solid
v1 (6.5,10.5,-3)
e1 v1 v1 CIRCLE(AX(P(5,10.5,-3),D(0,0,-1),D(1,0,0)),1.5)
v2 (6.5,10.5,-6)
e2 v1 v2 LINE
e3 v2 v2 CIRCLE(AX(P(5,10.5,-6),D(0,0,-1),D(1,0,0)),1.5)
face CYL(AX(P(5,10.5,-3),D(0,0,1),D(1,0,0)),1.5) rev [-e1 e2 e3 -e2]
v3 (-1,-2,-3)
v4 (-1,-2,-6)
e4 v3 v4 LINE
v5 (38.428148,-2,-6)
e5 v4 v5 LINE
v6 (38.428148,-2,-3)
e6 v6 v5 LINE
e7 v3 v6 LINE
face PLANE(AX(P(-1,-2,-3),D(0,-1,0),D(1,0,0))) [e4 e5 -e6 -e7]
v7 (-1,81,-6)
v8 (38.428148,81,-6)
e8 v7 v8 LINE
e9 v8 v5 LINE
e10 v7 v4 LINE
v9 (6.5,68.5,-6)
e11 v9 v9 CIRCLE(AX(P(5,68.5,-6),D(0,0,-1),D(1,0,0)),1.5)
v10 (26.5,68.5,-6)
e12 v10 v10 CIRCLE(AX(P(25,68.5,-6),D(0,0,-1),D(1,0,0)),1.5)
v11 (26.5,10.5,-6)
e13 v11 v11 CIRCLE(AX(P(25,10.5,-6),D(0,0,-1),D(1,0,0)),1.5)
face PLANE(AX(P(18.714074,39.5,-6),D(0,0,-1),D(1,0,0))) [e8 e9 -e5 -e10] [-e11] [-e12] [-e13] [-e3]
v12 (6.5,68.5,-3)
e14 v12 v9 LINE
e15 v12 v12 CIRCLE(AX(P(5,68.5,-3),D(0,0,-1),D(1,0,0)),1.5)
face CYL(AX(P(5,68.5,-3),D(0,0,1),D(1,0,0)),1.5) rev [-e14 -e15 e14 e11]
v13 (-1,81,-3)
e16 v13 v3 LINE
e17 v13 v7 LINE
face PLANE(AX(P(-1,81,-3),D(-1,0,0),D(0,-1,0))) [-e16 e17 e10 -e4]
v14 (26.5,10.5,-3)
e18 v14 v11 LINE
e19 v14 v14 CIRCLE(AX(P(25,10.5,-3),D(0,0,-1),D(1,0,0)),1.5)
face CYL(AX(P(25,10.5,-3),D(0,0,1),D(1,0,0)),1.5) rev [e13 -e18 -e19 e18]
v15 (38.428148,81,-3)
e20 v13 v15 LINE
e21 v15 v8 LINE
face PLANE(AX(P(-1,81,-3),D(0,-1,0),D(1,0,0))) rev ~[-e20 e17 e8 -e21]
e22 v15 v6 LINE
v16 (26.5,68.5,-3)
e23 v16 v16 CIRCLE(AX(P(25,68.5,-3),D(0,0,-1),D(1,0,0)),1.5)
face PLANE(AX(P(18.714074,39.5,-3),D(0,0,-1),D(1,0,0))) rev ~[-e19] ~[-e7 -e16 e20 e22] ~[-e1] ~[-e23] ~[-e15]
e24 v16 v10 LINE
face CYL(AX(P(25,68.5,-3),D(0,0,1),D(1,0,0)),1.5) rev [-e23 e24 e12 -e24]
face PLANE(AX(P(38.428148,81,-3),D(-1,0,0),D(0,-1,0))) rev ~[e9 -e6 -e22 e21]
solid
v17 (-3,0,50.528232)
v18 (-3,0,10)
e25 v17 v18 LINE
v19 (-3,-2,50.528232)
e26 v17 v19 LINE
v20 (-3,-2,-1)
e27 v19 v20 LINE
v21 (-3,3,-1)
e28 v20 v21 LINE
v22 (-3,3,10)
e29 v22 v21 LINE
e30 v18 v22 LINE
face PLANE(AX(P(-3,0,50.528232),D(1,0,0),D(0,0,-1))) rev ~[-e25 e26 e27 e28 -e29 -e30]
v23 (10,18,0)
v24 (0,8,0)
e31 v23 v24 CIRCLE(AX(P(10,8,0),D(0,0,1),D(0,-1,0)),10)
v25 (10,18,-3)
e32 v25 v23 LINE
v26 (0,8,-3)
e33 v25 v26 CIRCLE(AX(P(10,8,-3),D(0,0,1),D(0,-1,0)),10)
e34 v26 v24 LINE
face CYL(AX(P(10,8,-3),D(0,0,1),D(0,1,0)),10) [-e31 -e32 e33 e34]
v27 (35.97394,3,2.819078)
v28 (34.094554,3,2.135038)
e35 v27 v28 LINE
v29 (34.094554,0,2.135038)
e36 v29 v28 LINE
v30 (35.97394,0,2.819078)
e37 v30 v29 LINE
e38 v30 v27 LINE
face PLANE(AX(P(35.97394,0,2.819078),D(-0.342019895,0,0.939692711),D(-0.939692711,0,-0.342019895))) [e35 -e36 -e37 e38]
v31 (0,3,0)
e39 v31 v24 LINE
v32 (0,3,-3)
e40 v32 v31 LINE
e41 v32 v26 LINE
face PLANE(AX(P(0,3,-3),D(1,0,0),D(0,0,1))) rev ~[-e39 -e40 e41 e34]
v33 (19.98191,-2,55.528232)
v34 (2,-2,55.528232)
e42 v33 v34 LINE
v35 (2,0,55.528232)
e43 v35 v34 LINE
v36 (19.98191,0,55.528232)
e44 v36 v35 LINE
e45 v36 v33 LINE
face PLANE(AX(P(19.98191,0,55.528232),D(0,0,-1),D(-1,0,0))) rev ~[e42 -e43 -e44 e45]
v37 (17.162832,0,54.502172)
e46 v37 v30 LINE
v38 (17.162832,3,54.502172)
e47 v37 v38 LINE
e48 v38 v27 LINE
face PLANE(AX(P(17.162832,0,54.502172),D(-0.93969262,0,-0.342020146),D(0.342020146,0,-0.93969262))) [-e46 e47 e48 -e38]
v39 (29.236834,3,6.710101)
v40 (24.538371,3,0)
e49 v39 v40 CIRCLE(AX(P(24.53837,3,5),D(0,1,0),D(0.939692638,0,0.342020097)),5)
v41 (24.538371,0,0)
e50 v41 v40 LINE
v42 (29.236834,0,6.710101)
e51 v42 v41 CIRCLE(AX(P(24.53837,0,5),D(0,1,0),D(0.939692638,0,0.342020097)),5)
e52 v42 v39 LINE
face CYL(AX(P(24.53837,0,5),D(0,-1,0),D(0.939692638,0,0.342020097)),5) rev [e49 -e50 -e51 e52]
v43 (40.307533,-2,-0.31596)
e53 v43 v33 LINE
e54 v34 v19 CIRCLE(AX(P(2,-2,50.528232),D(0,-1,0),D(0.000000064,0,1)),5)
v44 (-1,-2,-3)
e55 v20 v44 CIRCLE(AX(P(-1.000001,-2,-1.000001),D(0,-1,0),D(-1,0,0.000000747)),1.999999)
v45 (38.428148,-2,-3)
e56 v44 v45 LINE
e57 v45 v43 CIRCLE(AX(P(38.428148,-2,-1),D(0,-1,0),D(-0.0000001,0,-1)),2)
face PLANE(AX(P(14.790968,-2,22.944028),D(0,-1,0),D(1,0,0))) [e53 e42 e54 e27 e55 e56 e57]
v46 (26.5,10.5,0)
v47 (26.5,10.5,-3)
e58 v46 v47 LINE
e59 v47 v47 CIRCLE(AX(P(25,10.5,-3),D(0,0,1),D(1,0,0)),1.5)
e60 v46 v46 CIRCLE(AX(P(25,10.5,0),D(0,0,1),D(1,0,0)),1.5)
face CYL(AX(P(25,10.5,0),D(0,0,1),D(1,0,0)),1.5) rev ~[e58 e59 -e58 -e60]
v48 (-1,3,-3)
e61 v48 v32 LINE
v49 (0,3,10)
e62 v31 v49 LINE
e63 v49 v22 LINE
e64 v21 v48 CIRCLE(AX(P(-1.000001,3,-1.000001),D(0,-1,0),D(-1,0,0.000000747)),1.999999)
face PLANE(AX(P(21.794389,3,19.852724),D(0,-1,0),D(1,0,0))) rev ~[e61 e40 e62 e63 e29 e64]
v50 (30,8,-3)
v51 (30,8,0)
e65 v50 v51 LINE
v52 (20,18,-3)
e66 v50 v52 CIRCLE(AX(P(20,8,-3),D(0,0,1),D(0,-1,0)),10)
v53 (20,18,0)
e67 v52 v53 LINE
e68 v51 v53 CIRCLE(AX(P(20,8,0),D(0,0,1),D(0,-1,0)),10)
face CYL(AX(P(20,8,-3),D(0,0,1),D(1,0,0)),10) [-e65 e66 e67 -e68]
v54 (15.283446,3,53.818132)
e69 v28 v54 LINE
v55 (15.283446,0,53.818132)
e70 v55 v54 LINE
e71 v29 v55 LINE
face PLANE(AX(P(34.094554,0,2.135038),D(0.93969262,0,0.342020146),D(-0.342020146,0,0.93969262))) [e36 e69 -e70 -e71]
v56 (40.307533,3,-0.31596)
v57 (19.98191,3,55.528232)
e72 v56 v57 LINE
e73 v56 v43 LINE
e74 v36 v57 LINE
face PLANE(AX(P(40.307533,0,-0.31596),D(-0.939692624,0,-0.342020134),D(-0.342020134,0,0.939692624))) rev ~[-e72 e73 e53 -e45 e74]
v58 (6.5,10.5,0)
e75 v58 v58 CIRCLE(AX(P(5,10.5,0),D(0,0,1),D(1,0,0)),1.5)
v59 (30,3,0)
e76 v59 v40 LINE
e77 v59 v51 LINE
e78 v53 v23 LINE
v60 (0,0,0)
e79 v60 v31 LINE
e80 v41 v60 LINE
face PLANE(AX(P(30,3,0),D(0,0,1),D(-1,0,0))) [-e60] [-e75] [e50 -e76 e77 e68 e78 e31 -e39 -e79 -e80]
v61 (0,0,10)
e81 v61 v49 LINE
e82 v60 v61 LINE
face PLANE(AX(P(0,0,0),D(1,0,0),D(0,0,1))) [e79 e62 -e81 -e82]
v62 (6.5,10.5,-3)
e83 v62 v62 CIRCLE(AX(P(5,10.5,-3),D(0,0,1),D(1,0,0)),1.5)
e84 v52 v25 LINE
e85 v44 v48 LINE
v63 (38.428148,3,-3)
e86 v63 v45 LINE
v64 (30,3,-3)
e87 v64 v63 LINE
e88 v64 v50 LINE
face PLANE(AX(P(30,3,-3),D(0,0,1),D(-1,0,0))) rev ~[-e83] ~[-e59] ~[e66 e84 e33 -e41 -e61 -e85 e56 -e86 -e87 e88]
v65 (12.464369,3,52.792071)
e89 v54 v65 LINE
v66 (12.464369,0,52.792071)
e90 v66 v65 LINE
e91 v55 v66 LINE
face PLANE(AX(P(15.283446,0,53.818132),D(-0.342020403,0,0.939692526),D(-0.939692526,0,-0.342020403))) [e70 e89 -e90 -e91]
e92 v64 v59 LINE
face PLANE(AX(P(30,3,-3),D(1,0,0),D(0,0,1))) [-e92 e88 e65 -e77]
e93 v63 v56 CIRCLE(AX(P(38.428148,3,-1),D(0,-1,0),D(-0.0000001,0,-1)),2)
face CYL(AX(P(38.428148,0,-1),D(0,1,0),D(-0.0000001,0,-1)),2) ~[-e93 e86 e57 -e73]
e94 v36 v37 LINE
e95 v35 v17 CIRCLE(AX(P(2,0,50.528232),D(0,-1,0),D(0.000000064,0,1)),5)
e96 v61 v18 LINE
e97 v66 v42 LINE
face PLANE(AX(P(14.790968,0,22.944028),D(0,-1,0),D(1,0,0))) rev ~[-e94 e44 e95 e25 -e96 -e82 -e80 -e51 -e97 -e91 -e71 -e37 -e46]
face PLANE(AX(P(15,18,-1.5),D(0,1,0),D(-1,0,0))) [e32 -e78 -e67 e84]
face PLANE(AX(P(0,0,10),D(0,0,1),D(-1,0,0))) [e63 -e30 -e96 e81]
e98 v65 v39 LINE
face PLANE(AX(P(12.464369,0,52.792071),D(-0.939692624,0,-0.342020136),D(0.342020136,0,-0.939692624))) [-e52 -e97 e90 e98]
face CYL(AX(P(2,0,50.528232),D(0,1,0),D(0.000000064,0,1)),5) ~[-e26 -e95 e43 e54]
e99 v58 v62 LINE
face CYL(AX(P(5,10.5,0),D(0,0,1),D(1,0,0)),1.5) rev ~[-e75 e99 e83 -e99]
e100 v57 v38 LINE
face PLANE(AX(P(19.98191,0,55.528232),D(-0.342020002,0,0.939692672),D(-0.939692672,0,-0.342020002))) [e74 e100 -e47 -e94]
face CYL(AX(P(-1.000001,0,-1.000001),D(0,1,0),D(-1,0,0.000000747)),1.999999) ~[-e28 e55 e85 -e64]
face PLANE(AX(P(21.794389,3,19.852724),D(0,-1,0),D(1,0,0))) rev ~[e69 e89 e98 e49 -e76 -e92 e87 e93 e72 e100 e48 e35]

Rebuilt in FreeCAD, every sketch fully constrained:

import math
import FreeCAD as App
import Part
import Sketcher
from FreeCAD import Vector
Q = App.Units.Quantity


def edges_at(feature, points):
    """Names of the edges that pass closest to the given points."""
    edges = feature.Shape.Edges
    near = lambda p: min(range(len(edges)), key=lambda i: edges[i].distToShape(Part.Vertex(*p))[0])
    return sorted({f"Edge{near(p) + 1}" for p in points})

doc = App.newDocument("Part")
body = doc.addObject("PartDesign::Body", "Body")

# Sketch on XZ plane
sketch1 = doc.addObject("Sketcher::SketchObject", "Sketch")
body.addObject(sketch1)
sketch1.AttachmentSupport = (doc.XZ_Plane, [""])
sketch1.MapMode = "FlatFace"
sketch1.addGeometry(Part.LineSegment(Vector(24.5, 0, 0), Vector(0, 0, 0)), False)
sketch1.addGeometry(Part.LineSegment(Vector(0, 0, 0), Vector(0, 10, 0)), False)
sketch1.addGeometry(Part.LineSegment(Vector(0, 10, 0), Vector(-3, 10, 0)), False)
sketch1.addGeometry(Part.LineSegment(Vector(-3, 10, 0), Vector(-3, -1, 0)), False)
sketch1.addGeometry(Part.ArcOfCircle(Part.Circle(Vector(-1, -1, 0), Vector(0, 0, 1), 2), math.radians(180), math.radians(270)), False)
sketch1.addGeometry(Part.LineSegment(Vector(-1, -3, 0), Vector(38.4, -3, 0)), False)
sketch1.addGeometry(Part.ArcOfCircle(Part.Circle(Vector(38.4, -1, 0), Vector(0, 0, 1), 2), math.radians(-90), math.radians(20)), False)
sketch1.addGeometry(Part.LineSegment(Vector(40.3, -0.3, 0), Vector(20, 55.5, 0)), False)
sketch1.addGeometry(Part.LineSegment(Vector(20, 55.5, 0), Vector(17.2, 54.5, 0)), False)
sketch1.addGeometry(Part.LineSegment(Vector(17.2, 54.5, 0), Vector(36, 2.8, 0)), False)
sketch1.addGeometry(Part.LineSegment(Vector(36, 2.8, 0), Vector(34.1, 2.1, 0)), False)
sketch1.addGeometry(Part.LineSegment(Vector(34.1, 2.1, 0), Vector(15.3, 53.8, 0)), False)
sketch1.addGeometry(Part.LineSegment(Vector(15.3, 53.8, 0), Vector(12.5, 52.8, 0)), False)
sketch1.addGeometry(Part.LineSegment(Vector(12.5, 52.8, 0), Vector(29.2, 6.7, 0)), False)
sketch1.addGeometry(Part.ArcOfCircle(Part.Circle(Vector(24.5, 5, 0), Vector(0, 0, 1), 5), math.radians(-90), math.radians(20)), False)
sketch1.addConstraint(Sketcher.Constraint("Coincident", 0, 2, 1, 1))
sketch1.addConstraint(Sketcher.Constraint("Coincident", 1, 2, 2, 1))
sketch1.addConstraint(Sketcher.Constraint("Coincident", 2, 2, 3, 1))
sketch1.addConstraint(Sketcher.Constraint("Tangent", 3, 2, 4, 1))
sketch1.addConstraint(Sketcher.Constraint("Tangent", 4, 2, 5, 1))
sketch1.addConstraint(Sketcher.Constraint("Tangent", 5, 2, 6, 1))
sketch1.addConstraint(Sketcher.Constraint("Tangent", 6, 2, 7, 1))
sketch1.addConstraint(Sketcher.Constraint("Coincident", 7, 2, 8, 1))
sketch1.addConstraint(Sketcher.Constraint("Coincident", 8, 2, 9, 1))
sketch1.addConstraint(Sketcher.Constraint("Coincident", 9, 2, 10, 1))
sketch1.addConstraint(Sketcher.Constraint("Coincident", 10, 2, 11, 1))
sketch1.addConstraint(Sketcher.Constraint("Coincident", 11, 2, 12, 1))
sketch1.addConstraint(Sketcher.Constraint("Coincident", 12, 2, 13, 1))
sketch1.addConstraint(Sketcher.Constraint("Tangent", 13, 2, 14, 2))
sketch1.addConstraint(Sketcher.Constraint("Tangent", 14, 1, 0, 1))
sketch1.addConstraint(Sketcher.Constraint("Horizontal", 0))
sketch1.addConstraint(Sketcher.Constraint("Vertical", 1))
sketch1.addConstraint(Sketcher.Constraint("Horizontal", 2))
sketch1.addConstraint(Sketcher.Constraint("Vertical", 3))
sketch1.addConstraint(Sketcher.Constraint("Horizontal", 5))
sketch1.addConstraint(Sketcher.Constraint("Coincident", 0, 2, -1, 1))
sketch1.addConstraint(Sketcher.Constraint("Equal", 4, 6))
sketch1.addConstraint(Sketcher.Constraint("Perpendicular", 7, 8))
sketch1.addConstraint(Sketcher.Constraint("Perpendicular", 8, 9))
sketch1.addConstraint(Sketcher.Constraint("Perpendicular", 9, 10))
sketch1.addConstraint(Sketcher.Constraint("Perpendicular", 10, 11))
sketch1.addConstraint(Sketcher.Constraint("Perpendicular", 11, 12))
sketch1.addConstraint(Sketcher.Constraint("Perpendicular", 12, 13))
sketch1.addConstraint(Sketcher.Constraint("Equal", 9, 11))
sketch1.addConstraint(Sketcher.Constraint("Equal", 8, 12))
sketch1.addConstraint(Sketcher.Constraint("Radius", 4, Q("1.999999 mm")))
sketch1.addConstraint(Sketcher.Constraint("Radius", 14, Q("5 mm")))
sketch1.addConstraint(Sketcher.Constraint("DistanceX", 2, 2, 2, 1, Q("3 mm")))
sketch1.addConstraint(Sketcher.Constraint("DistanceY", 1, 1, 1, 2, Q("10 mm")))
sketch1.addConstraint(Sketcher.Constraint("DistanceY", 3, 2, 3, 1, Q("11 mm")))
sketch1.addConstraint(Sketcher.Constraint("Angle", 7, Q("109.999999 deg")))
sketch1.addConstraint(Sketcher.Constraint("Distance", 8, Q("3 mm")))
sketch1.addConstraint(Sketcher.Constraint("Distance", 9, Q("55 mm")))
sketch1.addConstraint(Sketcher.Constraint("Distance", 10, Q("2.000001 mm")))
sketch1.addConstraint(Sketcher.Constraint("DistanceY", 6, 2, 10, 2, Q("2.450998 mm")))
sketch1.addConstraint(Sketcher.Constraint("DistanceX", 0, 2, 0, 1, Q("24.538371 mm")))
pad1 = doc.addObject("PartDesign::Pad", "Pad")
body.addObject(pad1)
pad1.Profile = sketch1
pad1.Length = 3
pad1.Reversed = True

# Sketch on XZ plane
sketch2 = doc.addObject("Sketcher::SketchObject", "Sketch001")
body.addObject(sketch2)
sketch2.AttachmentSupport = (doc.XZ_Plane, [""])
sketch2.MapMode = "FlatFace"
sketch2.addGeometry(Part.LineSegment(Vector(-1, -3, 0), Vector(38.4, -3, 0)), False)
sketch2.addGeometry(Part.ArcOfCircle(Part.Circle(Vector(38.4, -1, 0), Vector(0, 0, 1), 2), math.radians(-90), math.radians(20)), False)
sketch2.addGeometry(Part.LineSegment(Vector(40.3, -0.3, 0), Vector(20, 55.5, 0)), False)
sketch2.addGeometry(Part.LineSegment(Vector(20, 55.5, 0), Vector(2, 55.5, 0)), False)
sketch2.addGeometry(Part.ArcOfCircle(Part.Circle(Vector(2, 50.5, 0), Vector(0, 0, 1), 5), math.radians(90), math.radians(180)), False)
sketch2.addGeometry(Part.LineSegment(Vector(-3, 50.5, 0), Vector(-3, -1, 0)), False)
sketch2.addGeometry(Part.ArcOfCircle(Part.Circle(Vector(-1, -1, 0), Vector(0, 0, 1), 2), math.radians(180), math.radians(270)), False)
sketch2.addConstraint(Sketcher.Constraint("Tangent", 0, 2, 1, 1))
sketch2.addConstraint(Sketcher.Constraint("Tangent", 1, 2, 2, 1))
sketch2.addConstraint(Sketcher.Constraint("Coincident", 2, 2, 3, 1))
sketch2.addConstraint(Sketcher.Constraint("Tangent", 3, 2, 4, 1))
sketch2.addConstraint(Sketcher.Constraint("Tangent", 4, 2, 5, 1))
sketch2.addConstraint(Sketcher.Constraint("Tangent", 5, 2, 6, 1))
sketch2.addConstraint(Sketcher.Constraint("Tangent", 6, 2, 0, 1))
sketch2.addConstraint(Sketcher.Constraint("Horizontal", 0))
sketch2.addConstraint(Sketcher.Constraint("Horizontal", 3))
sketch2.addConstraint(Sketcher.Constraint("Vertical", 5))
sketch2.addConstraint(Sketcher.Constraint("Equal", 1, 6))
sketch2.addConstraint(Sketcher.Constraint("Radius", 1, Q("2 mm")))
sketch2.addConstraint(Sketcher.Constraint("Radius", 4, Q("5 mm")))
sketch2.addConstraint(Sketcher.Constraint("Angle", 2, Q("109.999999 deg")))
sketch2.addConstraint(Sketcher.Constraint("DistanceY", 1, 3, -1, 1, Q("1 mm")))
sketch2.addConstraint(Sketcher.Constraint("DistanceX", -1, 1, 4, 3, Q("2 mm")))
sketch2.addConstraint(Sketcher.Constraint("DistanceX", 3, 2, 3, 1, Q("17.98191 mm")))
sketch2.addConstraint(Sketcher.Constraint("DistanceX", 0, 1, 0, 2, Q("39.428148 mm")))
pad2 = doc.addObject("PartDesign::Pad", "Pad001")
body.addObject(pad2)
pad2.Profile = sketch2
pad2.Length = 2

# Sketch on XZ plane
sketch3 = doc.addObject("Sketcher::SketchObject", "Sketch002")
body.addObject(sketch3)
sketch3.AttachmentSupport = (doc.XZ_Plane, [""])
sketch3.MapMode = "FlatFace"
sketch3.AttachmentOffset = App.Placement(Vector(0, 0, -3), App.Rotation())
sketch3.addGeometry(Part.LineSegment(Vector(30, 0, 0), Vector(30, -3, 0)), False)
sketch3.addGeometry(Part.LineSegment(Vector(30, -3, 0), Vector(0, -3, 0)), False)
sketch3.addGeometry(Part.LineSegment(Vector(0, -3, 0), Vector(0, 0, 0)), False)
sketch3.addGeometry(Part.LineSegment(Vector(0, 0, 0), Vector(30, 0, 0)), False)
sketch3.addConstraint(Sketcher.Constraint("Coincident", 0, 2, 1, 1))
sketch3.addConstraint(Sketcher.Constraint("Coincident", 1, 2, 2, 1))
sketch3.addConstraint(Sketcher.Constraint("Coincident", 2, 2, 3, 1))
sketch3.addConstraint(Sketcher.Constraint("Coincident", 3, 2, 0, 1))
sketch3.addConstraint(Sketcher.Constraint("Vertical", 0))
sketch3.addConstraint(Sketcher.Constraint("Horizontal", 1))
sketch3.addConstraint(Sketcher.Constraint("Vertical", 2))
sketch3.addConstraint(Sketcher.Constraint("Horizontal", 3))
sketch3.addConstraint(Sketcher.Constraint("Coincident", 2, 2, -1, 1))
sketch3.addConstraint(Sketcher.Constraint("DistanceX", 1, 2, 1, 1, Q("30 mm")))
sketch3.addConstraint(Sketcher.Constraint("DistanceY", 0, 2, 0, 1, Q("3 mm")))
pad3 = doc.addObject("PartDesign::Pad", "Pad002")
body.addObject(pad3)
pad3.Profile = sketch3
pad3.Length = 15
pad3.Reversed = True

# Sketch on XY plane
sketch4 = doc.addObject("Sketcher::SketchObject", "Sketch003")
body.addObject(sketch4)
sketch4.AttachmentSupport = (doc.XY_Plane, [""])
sketch4.MapMode = "FlatFace"
sketch4.addGeometry(Part.Circle(Vector(25, 10.5, 0), Vector(0, 0, 1), 1.5), False)
sketch4.addGeometry(Part.Circle(Vector(5, 10.5, 0), Vector(0, 0, 1), 1.5), False)
sketch4.addConstraint(Sketcher.Constraint("Equal", 0, 1))
sketch4.addConstraint(Sketcher.Constraint("Horizontal", 0, 3, 1, 3))
sketch4.addConstraint(Sketcher.Constraint("Diameter", 0, Q("3 mm")))
sketch4.addConstraint(Sketcher.Constraint("DistanceX", -1, 1, 0, 3, Q("25 mm")))
sketch4.addConstraint(Sketcher.Constraint("DistanceX", -1, 1, 1, 3, Q("5 mm")))
sketch4.addConstraint(Sketcher.Constraint("DistanceY", -1, 1, 0, 3, Q("10.5 mm")))
pocket1 = doc.addObject("PartDesign::Pocket", "Pocket")
body.addObject(pocket1)
pocket1.Profile = sketch4
pocket1.Type = "ThroughAll"
doc.recompute()

fillet = doc.addObject("PartDesign::Fillet", "Fillet")
body.addObject(fillet)
fillet.Base = (pocket1, edges_at(pocket1, [(30, 18, -1.5), (0, 18, -1.5)]))
fillet.Radius = 10
body2 = doc.addObject("PartDesign::Body", "Body001")

# Sketch on XY plane
sketch5 = doc.addObject("Sketcher::SketchObject", "Sketch004")
body2.addObject(sketch5)
sketch5.AttachmentSupport = (doc.getObject("XY_Plane001"), [""])
sketch5.MapMode = "FlatFace"
sketch5.AttachmentOffset = App.Placement(Vector(0, 0, -3), App.Rotation())
sketch5.addGeometry(Part.LineSegment(Vector(-1, -2, 0), Vector(-1, 81, 0)), False)
sketch5.addGeometry(Part.LineSegment(Vector(-1, 81, 0), Vector(38.4, 81, 0)), False)
sketch5.addGeometry(Part.LineSegment(Vector(38.4, 81, 0), Vector(38.4, -2, 0)), False)
sketch5.addGeometry(Part.LineSegment(Vector(38.4, -2, 0), Vector(-1, -2, 0)), False)
sketch5.addGeometry(Part.Circle(Vector(5, 68.5, 0), Vector(0, 0, 1), 1.5), False)
sketch5.addGeometry(Part.Circle(Vector(25, 68.5, 0), Vector(0, 0, 1), 1.5), False)
sketch5.addGeometry(Part.Circle(Vector(5, 10.5, 0), Vector(0, 0, 1), 1.5), False)
sketch5.addGeometry(Part.Circle(Vector(25, 10.5, 0), Vector(0, 0, 1), 1.5), False)
sketch5.addConstraint(Sketcher.Constraint("Coincident", 0, 2, 1, 1))
sketch5.addConstraint(Sketcher.Constraint("Coincident", 1, 2, 2, 1))
sketch5.addConstraint(Sketcher.Constraint("Coincident", 2, 2, 3, 1))
sketch5.addConstraint(Sketcher.Constraint("Coincident", 3, 2, 0, 1))
sketch5.addConstraint(Sketcher.Constraint("Vertical", 0))
sketch5.addConstraint(Sketcher.Constraint("Horizontal", 1))
sketch5.addConstraint(Sketcher.Constraint("Vertical", 2))
sketch5.addConstraint(Sketcher.Constraint("Horizontal", 3))
sketch5.addConstraint(Sketcher.Constraint("Equal", 4, 5))
sketch5.addConstraint(Sketcher.Constraint("Equal", 5, 6))
sketch5.addConstraint(Sketcher.Constraint("Equal", 6, 7))
sketch5.addConstraint(Sketcher.Constraint("Horizontal", 4, 3, 5, 3))
sketch5.addConstraint(Sketcher.Constraint("Horizontal", 6, 3, 7, 3))
sketch5.addConstraint(Sketcher.Constraint("Vertical", 4, 3, 6, 3))
sketch5.addConstraint(Sketcher.Constraint("Vertical", 5, 3, 7, 3))
sketch5.addConstraint(Sketcher.Constraint("Diameter", 4, Q("3 mm")))
sketch5.addConstraint(Sketcher.Constraint("DistanceY", 0, 1, 0, 2, Q("83 mm")))
sketch5.addConstraint(Sketcher.Constraint("DistanceX", -1, 1, 4, 3, Q("5 mm")))
sketch5.addConstraint(Sketcher.Constraint("DistanceX", -1, 1, 5, 3, Q("25 mm")))
sketch5.addConstraint(Sketcher.Constraint("DistanceX", 0, 2, -1, 1, Q("1 mm")))
sketch5.addConstraint(Sketcher.Constraint("DistanceY", -1, 1, 0, 2, Q("81 mm")))
sketch5.addConstraint(Sketcher.Constraint("DistanceY", 6, 3, 4, 3, Q("58 mm")))
sketch5.addConstraint(Sketcher.Constraint("DistanceY", -1, 1, 4, 3, Q("68.5 mm")))
sketch5.addConstraint(Sketcher.Constraint("DistanceX", 1, 1, 1, 2, Q("39.428148 mm")))
pad4 = doc.addObject("PartDesign::Pad", "Pad003")
body2.addObject(pad4)
pad4.Profile = sketch5
pad4.Length = 3
pad4.Reversed = True

doc.recompute()
